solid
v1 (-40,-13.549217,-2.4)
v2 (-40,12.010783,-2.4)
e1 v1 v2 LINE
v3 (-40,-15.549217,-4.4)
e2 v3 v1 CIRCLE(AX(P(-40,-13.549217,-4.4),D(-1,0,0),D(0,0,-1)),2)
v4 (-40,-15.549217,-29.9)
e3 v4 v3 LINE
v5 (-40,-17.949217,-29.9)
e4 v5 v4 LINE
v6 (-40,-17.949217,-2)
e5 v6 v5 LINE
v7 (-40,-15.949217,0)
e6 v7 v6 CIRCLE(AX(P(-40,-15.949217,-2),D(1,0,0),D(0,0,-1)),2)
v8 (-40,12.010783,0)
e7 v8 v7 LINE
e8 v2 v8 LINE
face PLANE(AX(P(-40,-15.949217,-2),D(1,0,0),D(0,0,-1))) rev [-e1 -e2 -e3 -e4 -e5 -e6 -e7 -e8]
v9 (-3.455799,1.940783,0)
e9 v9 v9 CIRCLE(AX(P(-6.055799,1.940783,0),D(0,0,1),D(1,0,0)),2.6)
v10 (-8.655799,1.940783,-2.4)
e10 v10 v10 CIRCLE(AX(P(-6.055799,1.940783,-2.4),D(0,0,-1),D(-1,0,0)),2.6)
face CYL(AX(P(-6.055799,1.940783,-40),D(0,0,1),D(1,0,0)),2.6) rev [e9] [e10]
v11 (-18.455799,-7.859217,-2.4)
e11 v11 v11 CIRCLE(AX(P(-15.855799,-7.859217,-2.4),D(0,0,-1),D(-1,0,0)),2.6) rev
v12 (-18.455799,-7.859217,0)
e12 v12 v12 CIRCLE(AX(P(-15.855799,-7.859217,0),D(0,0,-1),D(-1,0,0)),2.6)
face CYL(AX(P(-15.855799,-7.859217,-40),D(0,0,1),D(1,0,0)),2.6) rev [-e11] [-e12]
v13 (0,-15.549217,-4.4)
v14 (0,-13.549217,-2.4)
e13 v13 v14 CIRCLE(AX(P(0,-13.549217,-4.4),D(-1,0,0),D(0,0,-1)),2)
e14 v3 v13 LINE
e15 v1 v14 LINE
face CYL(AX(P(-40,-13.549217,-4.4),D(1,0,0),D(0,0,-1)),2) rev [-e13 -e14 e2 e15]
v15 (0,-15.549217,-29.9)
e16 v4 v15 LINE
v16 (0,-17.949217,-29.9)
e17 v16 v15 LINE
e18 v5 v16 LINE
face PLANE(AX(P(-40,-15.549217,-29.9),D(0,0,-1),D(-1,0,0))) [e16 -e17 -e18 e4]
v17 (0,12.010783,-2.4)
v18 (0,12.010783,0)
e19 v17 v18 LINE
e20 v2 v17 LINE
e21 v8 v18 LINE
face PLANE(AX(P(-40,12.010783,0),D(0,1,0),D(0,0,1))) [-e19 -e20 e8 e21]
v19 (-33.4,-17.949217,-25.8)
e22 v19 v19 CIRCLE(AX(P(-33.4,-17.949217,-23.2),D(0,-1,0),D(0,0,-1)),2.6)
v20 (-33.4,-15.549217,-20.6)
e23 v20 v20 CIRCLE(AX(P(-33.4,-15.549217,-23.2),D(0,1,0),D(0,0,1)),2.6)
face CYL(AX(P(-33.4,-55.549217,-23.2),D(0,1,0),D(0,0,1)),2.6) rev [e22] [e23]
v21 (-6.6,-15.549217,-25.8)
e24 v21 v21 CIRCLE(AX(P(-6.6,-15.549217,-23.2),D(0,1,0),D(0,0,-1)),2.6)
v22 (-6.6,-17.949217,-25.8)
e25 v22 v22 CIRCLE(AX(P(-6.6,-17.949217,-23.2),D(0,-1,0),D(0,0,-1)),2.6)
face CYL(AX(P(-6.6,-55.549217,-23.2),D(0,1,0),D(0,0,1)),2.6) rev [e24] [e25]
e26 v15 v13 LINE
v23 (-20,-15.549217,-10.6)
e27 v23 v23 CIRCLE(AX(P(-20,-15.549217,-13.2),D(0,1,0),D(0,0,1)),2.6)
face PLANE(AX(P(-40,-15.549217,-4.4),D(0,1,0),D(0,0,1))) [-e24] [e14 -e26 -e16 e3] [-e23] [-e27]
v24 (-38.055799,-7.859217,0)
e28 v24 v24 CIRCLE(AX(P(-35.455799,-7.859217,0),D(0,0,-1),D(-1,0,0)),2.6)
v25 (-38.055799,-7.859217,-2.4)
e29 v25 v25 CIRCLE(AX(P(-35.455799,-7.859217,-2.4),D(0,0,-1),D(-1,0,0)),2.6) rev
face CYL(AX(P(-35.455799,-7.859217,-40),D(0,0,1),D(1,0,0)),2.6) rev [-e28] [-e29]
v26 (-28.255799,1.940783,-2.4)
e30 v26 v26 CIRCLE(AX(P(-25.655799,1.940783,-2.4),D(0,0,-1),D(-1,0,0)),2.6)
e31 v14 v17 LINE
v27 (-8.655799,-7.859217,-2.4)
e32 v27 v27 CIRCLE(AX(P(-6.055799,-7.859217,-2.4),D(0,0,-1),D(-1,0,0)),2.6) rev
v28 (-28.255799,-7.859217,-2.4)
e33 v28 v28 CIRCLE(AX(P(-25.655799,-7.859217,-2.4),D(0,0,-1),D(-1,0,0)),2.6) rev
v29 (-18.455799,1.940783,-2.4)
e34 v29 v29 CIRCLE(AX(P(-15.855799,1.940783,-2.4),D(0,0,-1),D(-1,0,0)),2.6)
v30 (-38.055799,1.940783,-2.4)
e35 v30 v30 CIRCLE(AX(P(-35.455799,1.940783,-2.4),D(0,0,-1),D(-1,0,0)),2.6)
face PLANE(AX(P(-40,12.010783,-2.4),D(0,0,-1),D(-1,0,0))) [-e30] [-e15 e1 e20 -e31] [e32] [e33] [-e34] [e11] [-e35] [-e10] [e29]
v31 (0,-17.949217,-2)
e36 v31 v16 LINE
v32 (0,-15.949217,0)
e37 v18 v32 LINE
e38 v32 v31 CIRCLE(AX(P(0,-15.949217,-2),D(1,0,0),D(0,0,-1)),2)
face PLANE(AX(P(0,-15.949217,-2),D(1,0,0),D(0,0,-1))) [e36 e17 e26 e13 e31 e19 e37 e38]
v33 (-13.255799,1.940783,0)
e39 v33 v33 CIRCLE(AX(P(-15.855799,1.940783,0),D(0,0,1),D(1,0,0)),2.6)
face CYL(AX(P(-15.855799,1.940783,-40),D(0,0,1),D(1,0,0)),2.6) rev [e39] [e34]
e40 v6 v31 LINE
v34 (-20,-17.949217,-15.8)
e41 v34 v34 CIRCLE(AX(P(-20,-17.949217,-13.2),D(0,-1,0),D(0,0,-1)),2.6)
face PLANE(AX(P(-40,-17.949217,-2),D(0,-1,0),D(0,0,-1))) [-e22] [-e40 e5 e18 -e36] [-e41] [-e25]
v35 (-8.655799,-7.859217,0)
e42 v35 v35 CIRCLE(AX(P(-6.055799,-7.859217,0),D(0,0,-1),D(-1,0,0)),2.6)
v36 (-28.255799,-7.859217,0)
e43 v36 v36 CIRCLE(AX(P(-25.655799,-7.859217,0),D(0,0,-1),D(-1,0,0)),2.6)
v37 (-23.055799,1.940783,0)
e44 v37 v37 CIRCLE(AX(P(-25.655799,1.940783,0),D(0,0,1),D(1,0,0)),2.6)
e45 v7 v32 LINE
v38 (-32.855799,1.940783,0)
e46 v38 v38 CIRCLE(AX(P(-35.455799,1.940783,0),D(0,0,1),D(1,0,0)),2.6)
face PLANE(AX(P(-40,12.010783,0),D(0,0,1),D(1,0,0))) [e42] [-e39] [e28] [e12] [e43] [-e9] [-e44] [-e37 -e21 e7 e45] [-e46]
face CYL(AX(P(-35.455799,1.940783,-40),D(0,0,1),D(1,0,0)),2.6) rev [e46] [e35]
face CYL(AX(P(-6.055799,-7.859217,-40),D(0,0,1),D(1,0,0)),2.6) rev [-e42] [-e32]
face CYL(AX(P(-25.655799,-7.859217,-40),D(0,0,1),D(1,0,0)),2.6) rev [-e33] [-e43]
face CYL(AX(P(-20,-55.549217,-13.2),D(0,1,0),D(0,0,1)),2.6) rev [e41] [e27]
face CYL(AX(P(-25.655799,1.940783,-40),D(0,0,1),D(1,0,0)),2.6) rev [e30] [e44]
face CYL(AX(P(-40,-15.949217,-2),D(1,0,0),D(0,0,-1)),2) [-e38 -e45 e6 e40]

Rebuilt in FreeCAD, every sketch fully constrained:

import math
import FreeCAD as App
import Part
import Sketcher

doc = App.newDocument("Part")
body = doc.addObject("PartDesign::Body", "Body")

# Sketch on YZ plane
sketch1 = doc.addObject("Sketcher::SketchObject", "Sketch")
body.addObject(sketch1)
sketch1.AttachmentSupport = (doc.YZ_Plane, [""])
sketch1.MapMode = "FlatFace"
sketch1.addGeometry(Part.LineSegment(App.Vector(-17.9, -2, 0), App.Vector(-17.9, -29.9, 0)), False)
sketch1.addGeometry(Part.LineSegment(App.Vector(-17.9, -29.9, 0), App.Vector(-15.5, -29.9, 0)), False)
sketch1.addGeometry(Part.LineSegment(App.Vector(-15.5, -29.9, 0), App.Vector(-15.5, -4.4, 0)), False)
sketch1.addGeometry(Part.ArcOfCircle(Part.Circle(App.Vector(-13.5, -4.4, 0), App.Vector(0, 0, 1), 2), math.radians(90), math.radians(180)), False)
sketch1.addGeometry(Part.LineSegment(App.Vector(-13.5, -2.4, 0), App.Vector(12, -2.4, 0)), False)
sketch1.addGeometry(Part.LineSegment(App.Vector(12, -2.4, 0), App.Vector(12, 0, 0)), False)
sketch1.addGeometry(Part.LineSegment(App.Vector(12, 0, 0), App.Vector(-15.9, 0, 0)), False)
sketch1.addGeometry(Part.ArcOfCircle(Part.Circle(App.Vector(-15.9, -2, 0), App.Vector(0, 0, 1), 2), math.radians(90), math.radians(180)), False)
sketch1.addConstraint(Sketcher.Constraint("Coincident", 0, 2, 1, 1))
sketch1.addConstraint(Sketcher.Constraint("Coincident", 1, 2, 2, 1))
sketch1.addConstraint(Sketcher.Constraint("Tangent", 2, 2, 3, 2))
sketch1.addConstraint(Sketcher.Constraint("Tangent", 3, 1, 4, 1))
sketch1.addConstraint(Sketcher.Constraint("Coincident", 4, 2, 5, 1))
sketch1.addConstraint(Sketcher.Constraint("Coincident", 5, 2, 6, 1))
sketch1.addConstraint(Sketcher.Constraint("Tangent", 6, 2, 7, 1))
sketch1.addConstraint(Sketcher.Constraint("Tangent", 7, 2, 0, 1))
sketch1.addConstraint(Sketcher.Constraint("Vertical", 0))
sketch1.addConstraint(Sketcher.Constraint("Horizontal", 1))
sketch1.addConstraint(Sketcher.Constraint("Vertical", 2))
sketch1.addConstraint(Sketcher.Constraint("Horizontal", 4))
sketch1.addConstraint(Sketcher.Constraint("Vertical", 5))
sketch1.addConstraint(Sketcher.Constraint("Horizontal", 6))
sketch1.addConstraint(Sketcher.Constraint("Equal", 3, 7))
sketch1.addConstraint(Sketcher.Constraint("PointOnObject", 5, 2, -1))
sketch1.addConstraint(Sketcher.Constraint("Equal", 1, 5))
sketch1.addConstraint(Sketcher.Constraint("Radius", 3, 2.0))
sketch1.addConstraint(Sketcher.Constraint("DistanceX", 1, 1, 1, 2, 2.4))
sketch1.addConstraint(Sketcher.Constraint("DistanceY", 0, 2, 0, 1, 27.9))
sketch1.addConstraint(Sketcher.Constraint("DistanceX", 4, 1, 4, 2, 25.56))
sketch1.addConstraint(Sketcher.Constraint("DistanceX", 3, 3, -1, 1, 13.549217))
pad1 = doc.addObject("PartDesign::Pad", "Pad")
body.addObject(pad1)
pad1.Profile = sketch1
pad1.Length = 40
pad1.Reversed = True

# Sketch on XY plane
sketch2 = doc.addObject("Sketcher::SketchObject", "Sketch001")
body.addObject(sketch2)
sketch2.AttachmentSupport = (doc.XY_Plane, [""])
sketch2.MapMode = "FlatFace"
sketch2.addGeometry(Part.Circle(App.Vector(-35.5, 1.9, 0), App.Vector(0, 0, 1), 2.6), False)
sketch2.addGeometry(Part.Circle(App.Vector(-25.7, 1.9, 0), App.Vector(0, 0, 1), 2.6), False)
sketch2.addGeometry(Part.Circle(App.Vector(-15.9, 1.9, 0), App.Vector(0, 0, 1), 2.6), False)
sketch2.addGeometry(Part.Circle(App.Vector(-6.1, 1.9, 0), App.Vector(0, 0, 1), 2.6), False)
sketch2.addGeometry(Part.Circle(App.Vector(-6.1, -7.9, 0), App.Vector(0, 0, 1), 2.6), False)
sketch2.addGeometry(Part.Circle(App.Vector(-15.9, -7.9, 0), App.Vector(0, 0, 1), 2.6), False)
sketch2.addGeometry(Part.Circle(App.Vector(-25.7, -7.9, 0), App.Vector(0, 0, 1), 2.6), False)
sketch2.addGeometry(Part.Circle(App.Vector(-35.5, -7.9, 0), App.Vector(0, 0, 1), 2.6), False)
sketch2.addConstraint(Sketcher.Constraint("Equal", 0, 1))
sketch2.addConstraint(Sketcher.Constraint("Equal", 1, 2))
sketch2.addConstraint(Sketcher.Constraint("Equal", 2, 3))
sketch2.addConstraint(Sketcher.Constraint("Equal", 3, 4))
sketch2.addConstraint(Sketcher.Constraint("Equal", 4, 5))
sketch2.addConstraint(Sketcher.Constraint("Equal", 5, 6))
sketch2.addConstraint(Sketcher.Constraint("Equal", 6, 7))
sketch2.addConstraint(Sketcher.Constraint("Horizontal", 0, 3, 1, 3))
sketch2.addConstraint(Sketcher.Constraint("Horizontal", 1, 3, 2, 3))
sketch2.addConstraint(Sketcher.Constraint("Horizontal", 2, 3, 3, 3))
sketch2.addConstraint(Sketcher.Constraint("Horizontal", 4, 3, 5, 3))
sketch2.addConstraint(Sketcher.Constraint("Horizontal", 5, 3, 6, 3))
sketch2.addConstraint(Sketcher.Constraint("Horizontal", 6, 3, 7, 3))
sketch2.addConstraint(Sketcher.Constraint("Vertical", 3, 3, 4, 3))
sketch2.addConstraint(Sketcher.Constraint("Vertical", 2, 3, 5, 3))
sketch2.addConstraint(Sketcher.Constraint("Vertical", 1, 3, 6, 3))
sketch2.addConstraint(Sketcher.Constraint("Vertical", 0, 3, 7, 3))
sketch2.addConstraint(Sketcher.Constraint("Diameter", 0, 5.2))
sketch2.addConstraint(Sketcher.Constraint("DistanceX", 0, 3, 1, 3, 9.8))
sketch2.addConstraint(Sketcher.Constraint("DistanceX", 1, 3, 2, 3, 9.8))
sketch2.addConstraint(Sketcher.Constraint("DistanceX", 2, 3, 3, 3, 9.8))
sketch2.addConstraint(Sketcher.Constraint("DistanceY", 4, 3, 3, 3, 9.8))
sketch2.addConstraint(Sketcher.Constraint("DistanceX", 0, 3, -1, 1, 35.455799))
sketch2.addConstraint(Sketcher.Constraint("DistanceY", -1, 1, 0, 3, 1.940783))
pocket1 = doc.addObject("PartDesign::Pocket", "Pocket")
body.addObject(pocket1)
pocket1.Profile = sketch2
pocket1.Length = 40

# Sketch on XZ plane
sketch3 = doc.addObject("Sketcher::SketchObject", "Sketch002")
body.addObject(sketch3)
sketch3.AttachmentSupport = (doc.XZ_Plane, [""])
sketch3.MapMode = "FlatFace"
sketch3.AttachmentOffset = App.Placement(App.Vector(0, 0, 15.549217), App.Rotation())
sketch3.addGeometry(Part.Circle(App.Vector(-33.4, -23.2, 0), App.Vector(0, 0, 1), 2.6), False)
sketch3.addGeometry(Part.Circle(App.Vector(-6.6, -23.2, 0), App.Vector(0, 0, 1), 2.6), False)
sketch3.addGeometry(Part.Circle(App.Vector(-20, -13.2, 0), App.Vector(0, 0, 1), 2.6), False)
sketch3.addConstraint(Sketcher.Constraint("Equal", 0, 1))
sketch3.addConstraint(Sketcher.Constraint("Equal", 1, 2))
sketch3.addConstraint(Sketcher.Constraint("Horizontal", 0, 3, 1, 3))
sketch3.addConstraint(Sketcher.Constraint("Diameter", 0, 5.2))
sketch3.addConstraint(Sketcher.Constraint("DistanceX", 2, 3, -1, 1, 20.0))
sketch3.addConstraint(Sketcher.Constraint("DistanceY", 0, 3, 2, 3, 10.0))
sketch3.addConstraint(Sketcher.Constraint("DistanceX", 0, 3, -1, 1, 33.4))
sketch3.addConstraint(Sketcher.Constraint("DistanceY", 0, 3, -1, 1, 23.2))
sketch3.addConstraint(Sketcher.Constraint("DistanceX", 1, 3, -1, 1, 6.6))
pocket2 = doc.addObject("PartDesign::Pocket", "Pocket001")
body.addObject(pocket2)
pocket2.Profile = sketch3
pocket2.Length = 40
pocket2.Reversed = True

doc.recompute()
